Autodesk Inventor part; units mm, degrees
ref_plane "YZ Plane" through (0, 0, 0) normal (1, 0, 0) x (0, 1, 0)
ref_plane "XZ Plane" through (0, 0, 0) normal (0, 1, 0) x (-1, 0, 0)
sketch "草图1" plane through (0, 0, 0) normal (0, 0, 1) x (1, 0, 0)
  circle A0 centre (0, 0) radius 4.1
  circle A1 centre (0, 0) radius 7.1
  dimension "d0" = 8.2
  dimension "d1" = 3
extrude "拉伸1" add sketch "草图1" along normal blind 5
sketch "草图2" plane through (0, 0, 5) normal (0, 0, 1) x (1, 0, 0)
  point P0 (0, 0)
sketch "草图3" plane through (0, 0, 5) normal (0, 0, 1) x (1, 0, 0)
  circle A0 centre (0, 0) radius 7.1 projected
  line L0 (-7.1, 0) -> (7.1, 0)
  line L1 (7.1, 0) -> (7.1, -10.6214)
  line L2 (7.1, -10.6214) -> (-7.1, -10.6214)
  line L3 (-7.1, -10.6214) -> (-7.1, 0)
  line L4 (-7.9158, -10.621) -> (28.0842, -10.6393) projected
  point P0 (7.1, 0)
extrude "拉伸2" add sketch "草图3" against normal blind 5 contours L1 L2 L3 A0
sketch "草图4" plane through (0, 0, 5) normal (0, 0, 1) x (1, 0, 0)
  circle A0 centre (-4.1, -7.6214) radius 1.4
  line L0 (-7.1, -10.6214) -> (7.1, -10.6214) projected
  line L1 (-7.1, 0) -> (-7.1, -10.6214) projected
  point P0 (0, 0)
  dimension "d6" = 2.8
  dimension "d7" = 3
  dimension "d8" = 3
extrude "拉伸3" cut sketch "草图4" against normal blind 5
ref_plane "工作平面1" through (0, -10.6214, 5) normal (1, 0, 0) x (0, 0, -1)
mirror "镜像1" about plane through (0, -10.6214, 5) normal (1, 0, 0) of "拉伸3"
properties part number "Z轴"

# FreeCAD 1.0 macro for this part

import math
import FreeCAD as App
import Part
import Sketcher
from FreeCAD import Vector

doc = App.newDocument("Part")
body = doc.addObject("PartDesign::Body", "Body")

# Sketch on XY plane
sketch1 = body.newObject("Sketcher::SketchObject", "Sketch")
sketch1.AttachmentSupport = (doc.getObject("XY_Plane"), [""])
sketch1.MapMode = "FlatFace"
sketch1.addGeometry(Part.Circle(Vector(0, 0, 0), Vector(0, 0, 1), 7.1), False)
sketch1.addGeometry(Part.Circle(Vector(0, 0, 0), Vector(0, 0, 1), 4.1), False)
sketch1.addConstraint(Sketcher.Constraint("Coincident", 0, 3, -1, 1))
sketch1.addConstraint(Sketcher.Constraint("Coincident", 1, 3, -1, 1))
sketch1.addConstraint(Sketcher.Constraint("Diameter", 1, 8.2))
sketch1.addConstraint(Sketcher.Constraint("Diameter", 0, 14.2))
pad1 = body.newObject("PartDesign::Pad", "Pad")
pad1.Profile = sketch1
pad1.Length = 5

# Sketch on XY plane
sketch2 = body.newObject("Sketcher::SketchObject", "Sketch001")
sketch2.AttachmentSupport = (doc.getObject("XY_Plane"), [""])
sketch2.MapMode = "FlatFace"
sketch2.AttachmentOffset = App.Placement(Vector(0, 0, 5), App.Rotation())
sketch2.addGeometry(Part.LineSegment(Vector(7.1, -10.6214, 0), Vector(7.1, 0, 0)), False)
sketch2.addGeometry(Part.ArcOfCircle(Part.Circle(Vector(0, 0, 0), Vector(0, 0, 1), 7.1), math.radians(180), math.radians(360)), False)
sketch2.addGeometry(Part.LineSegment(Vector(-7.1, 0, 0), Vector(-7.1, -10.6214, 0)), False)
sketch2.addGeometry(Part.LineSegment(Vector(-7.1, -10.6214, 0), Vector(7.1, -10.6214, 0)), False)
sketch2.addConstraint(Sketcher.Constraint("Tangent", 0, 2, 1, 2))
sketch2.addConstraint(Sketcher.Constraint("Tangent", 1, 1, 2, 1))
sketch2.addConstraint(Sketcher.Constraint("Coincident", 2, 2, 3, 1))
sketch2.addConstraint(Sketcher.Constraint("Coincident", 3, 2, 0, 1))
sketch2.addConstraint(Sketcher.Constraint("Vertical", 0))
sketch2.addConstraint(Sketcher.Constraint("Vertical", 2))
sketch2.addConstraint(Sketcher.Constraint("Horizontal", 3))
sketch2.addConstraint(Sketcher.Constraint("Coincident", 1, 3, -1, 1))
sketch2.addConstraint(Sketcher.Constraint("Radius", 1, 7.1))
sketch2.addConstraint(Sketcher.Constraint("DistanceY", 0, 1, 0, 2, 10.6214))
pad2 = body.newObject("PartDesign::Pad", "Pad001")
pad2.Profile = sketch2
pad2.Length = 5
pad2.Reversed = True

# Sketch on XY plane
sketch3 = body.newObject("Sketcher::SketchObject", "Sketch002")
sketch3.AttachmentSupport = (doc.getObject("XY_Plane"), [""])
sketch3.MapMode = "FlatFace"
sketch3.AttachmentOffset = App.Placement(Vector(0, 0, 5), App.Rotation())
sketch3.addGeometry(Part.Circle(Vector(-4.1, -7.6214, 0), Vector(0, 0, 1), 1.4), False)
sketch3.addConstraint(Sketcher.Constraint("Diameter", 0, 2.8))
sketch3.addConstraint(Sketcher.Constraint("DistanceX", 0, 3, -1, 1, 4.1))
sketch3.addConstraint(Sketcher.Constraint("DistanceY", 0, 3, -1, 1, 7.6214))
pocket1 = body.newObject("PartDesign::Pocket", "Pocket")
pocket1.Profile = sketch3
pocket1.Length = 5
doc.recompute()

mirrored = body.newObject("PartDesign::Mirrored", "Mirrored")
mirrored.Originals = [pocket1]
mirrored.MirrorPlane = (doc.getObject("YZ_Plane"), [""])
body.Tip = mirrored

doc.recompute()
